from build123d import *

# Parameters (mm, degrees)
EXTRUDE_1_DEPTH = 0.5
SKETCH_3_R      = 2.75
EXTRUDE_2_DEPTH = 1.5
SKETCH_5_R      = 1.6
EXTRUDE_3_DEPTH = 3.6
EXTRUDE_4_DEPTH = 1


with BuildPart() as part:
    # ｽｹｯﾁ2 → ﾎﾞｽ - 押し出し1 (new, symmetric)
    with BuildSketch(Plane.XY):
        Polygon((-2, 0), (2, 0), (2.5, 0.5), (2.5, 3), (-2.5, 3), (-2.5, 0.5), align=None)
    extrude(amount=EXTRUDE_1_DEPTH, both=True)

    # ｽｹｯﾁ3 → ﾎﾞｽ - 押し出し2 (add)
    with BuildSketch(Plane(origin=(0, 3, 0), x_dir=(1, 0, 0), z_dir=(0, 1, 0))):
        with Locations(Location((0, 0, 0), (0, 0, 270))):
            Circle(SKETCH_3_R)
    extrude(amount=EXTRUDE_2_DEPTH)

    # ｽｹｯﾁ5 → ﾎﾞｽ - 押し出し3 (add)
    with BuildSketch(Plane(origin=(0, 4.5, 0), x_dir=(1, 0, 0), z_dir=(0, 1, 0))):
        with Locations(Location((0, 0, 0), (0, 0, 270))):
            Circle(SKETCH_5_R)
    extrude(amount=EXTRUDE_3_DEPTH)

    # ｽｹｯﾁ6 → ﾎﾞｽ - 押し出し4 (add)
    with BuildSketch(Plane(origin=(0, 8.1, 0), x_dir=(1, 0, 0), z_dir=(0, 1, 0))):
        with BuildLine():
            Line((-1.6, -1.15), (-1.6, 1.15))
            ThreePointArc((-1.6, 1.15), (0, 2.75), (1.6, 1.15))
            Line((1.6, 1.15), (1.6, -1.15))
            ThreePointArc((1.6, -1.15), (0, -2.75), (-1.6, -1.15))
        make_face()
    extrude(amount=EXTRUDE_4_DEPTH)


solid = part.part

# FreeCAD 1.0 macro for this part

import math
import FreeCAD as App
import Part
import Sketcher
from FreeCAD import Vector


def add_polygon(sketch, points):
    """Adds a closed chain of lines whose ends are joined by coincident constraints."""
    first, n = sketch.GeometryCount, len(points)
    for a, b in zip(points, points[1:] + points[:1]):
        sketch.addGeometry(Part.LineSegment(App.Vector(*a, 0), App.Vector(*b, 0)), False)
    for i in range(n):
        sketch.addConstraint(Sketcher.Constraint("Coincident", first + i, 2, first + (i + 1) % n, 1))

doc = App.newDocument("Part")
body = doc.addObject("PartDesign::Body", "Body")

# Sketch on XY plane
sketch1 = body.newObject("Sketcher::SketchObject", "Sketch")
sketch1.AttachmentSupport = (doc.getObject("XY_Plane"), [""])
sketch1.MapMode = "FlatFace"
add_polygon(sketch1, [(-2, 0), (2, 0), (2.5, 0.5), (2.5, 3), (-2.5, 3), (-2.5, 0.5)])  # lines 0-5
sketch1.addConstraint([
    Sketcher.Constraint("Horizontal", 0),
    Sketcher.Constraint("Vertical", 2),
    Sketcher.Constraint("Horizontal", 3),
    Sketcher.Constraint("Vertical", 4),
    Sketcher.Constraint("Symmetric", 0, 2, 5, 2, -1, 1),
    Sketcher.Constraint("Symmetric", 1, 2, 4, 2, -2),
    Sketcher.Constraint("Perpendicular", 1, 5),
    Sketcher.Constraint("DistanceX", 0, 1, 0, 2, 4.0),
    Sketcher.Constraint("DistanceX", 3, 2, 3, 1, 5.0),
    Sketcher.Constraint("DistanceY", 2, 1, 2, 2, 2.5),
])
pad1 = body.newObject("PartDesign::Pad", "Pad")
pad1.Profile = sketch1
pad1.Length = 1
pad1.Midplane = True

# Sketch on XZ plane
sketch2 = body.newObject("Sketcher::SketchObject", "Sketch001")
sketch2.AttachmentSupport = (doc.getObject("XZ_Plane"), [""])
sketch2.MapMode = "FlatFace"
sketch2.AttachmentOffset = App.Placement(Vector(0, 0, -3), App.Rotation())
sketch2.addGeometry(Part.Circle(Vector(0, 0, 0), Vector(0, 0, 1), 2.8), False)
sketch2.addConstraint([
    Sketcher.Constraint("Coincident", 0, 3, -1, 1),
    Sketcher.Constraint("Diameter", 0, 5.5),
])
pad2 = body.newObject("PartDesign::Pad", "Pad001")
pad2.Profile = sketch2
pad2.Length = 1.5
pad2.Reversed = True

# Sketch on XZ plane
sketch3 = body.newObject("Sketcher::SketchObject", "Sketch002")
sketch3.AttachmentSupport = (doc.getObject("XZ_Plane"), [""])
sketch3.MapMode = "FlatFace"
sketch3.AttachmentOffset = App.Placement(Vector(0, 0, -4.5), App.Rotation())
sketch3.addGeometry(Part.Circle(Vector(0, 0, 0), Vector(0, 0, 1), 1.6), False)
sketch3.addConstraint([
    Sketcher.Constraint("Coincident", 0, 3, -1, 1),
    Sketcher.Constraint("Diameter", 0, 3.2),
])
pad3 = body.newObject("PartDesign::Pad", "Pad002")
pad3.Profile = sketch3
pad3.Length = 3.6
pad3.Reversed = True

# Sketch on XZ plane
sketch4 = body.newObject("Sketcher::SketchObject", "Sketch003")
sketch4.AttachmentSupport = (doc.getObject("XZ_Plane"), [""])
sketch4.MapMode = "FlatFace"
sketch4.AttachmentOffset = App.Placement(Vector(0, 0, -8.1), App.Rotation())
sketch4.addGeometry([
    Part.LineSegment(Vector(-1.6, -1.1, 0), Vector(-1.6, 1.1, 0)),
    Part.ArcOfCircle(Part.Circle(Vector(0, 1.1, 0), Vector(0, 0, 1), 1.6), math.radians(0), math.radians(180)),
    Part.LineSegment(Vector(1.6, 1.1, 0), Vector(1.6, -1.1, 0)),
    Part.ArcOfCircle(Part.Circle(Vector(0, -1.1, 0), Vector(0, 0, 1), 1.6), math.radians(180), math.radians(360)),
], False)
sketch4.addConstraint([
    Sketcher.Constraint("Tangent", 0, 2, 1, 2),
    Sketcher.Constraint("Tangent", 1, 1, 2, 1),
    Sketcher.Constraint("Tangent", 2, 2, 3, 2),
    Sketcher.Constraint("Tangent", 3, 1, 0, 1),
    Sketcher.Constraint("Vertical", 0),
    Sketcher.Constraint("Vertical", 2),
    Sketcher.Constraint("Symmetric", 1, 3, 3, 3, -1, 1),
    Sketcher.Constraint("Radius", 1, 1.6),
    Sketcher.Constraint("DistanceY", 0, 1, 0, 2, 2.3),
])
pad4 = body.newObject("PartDesign::Pad", "Pad003")
pad4.Profile = sketch4
pad4.Length = 1
pad4.Reversed = True

doc.recompute()
